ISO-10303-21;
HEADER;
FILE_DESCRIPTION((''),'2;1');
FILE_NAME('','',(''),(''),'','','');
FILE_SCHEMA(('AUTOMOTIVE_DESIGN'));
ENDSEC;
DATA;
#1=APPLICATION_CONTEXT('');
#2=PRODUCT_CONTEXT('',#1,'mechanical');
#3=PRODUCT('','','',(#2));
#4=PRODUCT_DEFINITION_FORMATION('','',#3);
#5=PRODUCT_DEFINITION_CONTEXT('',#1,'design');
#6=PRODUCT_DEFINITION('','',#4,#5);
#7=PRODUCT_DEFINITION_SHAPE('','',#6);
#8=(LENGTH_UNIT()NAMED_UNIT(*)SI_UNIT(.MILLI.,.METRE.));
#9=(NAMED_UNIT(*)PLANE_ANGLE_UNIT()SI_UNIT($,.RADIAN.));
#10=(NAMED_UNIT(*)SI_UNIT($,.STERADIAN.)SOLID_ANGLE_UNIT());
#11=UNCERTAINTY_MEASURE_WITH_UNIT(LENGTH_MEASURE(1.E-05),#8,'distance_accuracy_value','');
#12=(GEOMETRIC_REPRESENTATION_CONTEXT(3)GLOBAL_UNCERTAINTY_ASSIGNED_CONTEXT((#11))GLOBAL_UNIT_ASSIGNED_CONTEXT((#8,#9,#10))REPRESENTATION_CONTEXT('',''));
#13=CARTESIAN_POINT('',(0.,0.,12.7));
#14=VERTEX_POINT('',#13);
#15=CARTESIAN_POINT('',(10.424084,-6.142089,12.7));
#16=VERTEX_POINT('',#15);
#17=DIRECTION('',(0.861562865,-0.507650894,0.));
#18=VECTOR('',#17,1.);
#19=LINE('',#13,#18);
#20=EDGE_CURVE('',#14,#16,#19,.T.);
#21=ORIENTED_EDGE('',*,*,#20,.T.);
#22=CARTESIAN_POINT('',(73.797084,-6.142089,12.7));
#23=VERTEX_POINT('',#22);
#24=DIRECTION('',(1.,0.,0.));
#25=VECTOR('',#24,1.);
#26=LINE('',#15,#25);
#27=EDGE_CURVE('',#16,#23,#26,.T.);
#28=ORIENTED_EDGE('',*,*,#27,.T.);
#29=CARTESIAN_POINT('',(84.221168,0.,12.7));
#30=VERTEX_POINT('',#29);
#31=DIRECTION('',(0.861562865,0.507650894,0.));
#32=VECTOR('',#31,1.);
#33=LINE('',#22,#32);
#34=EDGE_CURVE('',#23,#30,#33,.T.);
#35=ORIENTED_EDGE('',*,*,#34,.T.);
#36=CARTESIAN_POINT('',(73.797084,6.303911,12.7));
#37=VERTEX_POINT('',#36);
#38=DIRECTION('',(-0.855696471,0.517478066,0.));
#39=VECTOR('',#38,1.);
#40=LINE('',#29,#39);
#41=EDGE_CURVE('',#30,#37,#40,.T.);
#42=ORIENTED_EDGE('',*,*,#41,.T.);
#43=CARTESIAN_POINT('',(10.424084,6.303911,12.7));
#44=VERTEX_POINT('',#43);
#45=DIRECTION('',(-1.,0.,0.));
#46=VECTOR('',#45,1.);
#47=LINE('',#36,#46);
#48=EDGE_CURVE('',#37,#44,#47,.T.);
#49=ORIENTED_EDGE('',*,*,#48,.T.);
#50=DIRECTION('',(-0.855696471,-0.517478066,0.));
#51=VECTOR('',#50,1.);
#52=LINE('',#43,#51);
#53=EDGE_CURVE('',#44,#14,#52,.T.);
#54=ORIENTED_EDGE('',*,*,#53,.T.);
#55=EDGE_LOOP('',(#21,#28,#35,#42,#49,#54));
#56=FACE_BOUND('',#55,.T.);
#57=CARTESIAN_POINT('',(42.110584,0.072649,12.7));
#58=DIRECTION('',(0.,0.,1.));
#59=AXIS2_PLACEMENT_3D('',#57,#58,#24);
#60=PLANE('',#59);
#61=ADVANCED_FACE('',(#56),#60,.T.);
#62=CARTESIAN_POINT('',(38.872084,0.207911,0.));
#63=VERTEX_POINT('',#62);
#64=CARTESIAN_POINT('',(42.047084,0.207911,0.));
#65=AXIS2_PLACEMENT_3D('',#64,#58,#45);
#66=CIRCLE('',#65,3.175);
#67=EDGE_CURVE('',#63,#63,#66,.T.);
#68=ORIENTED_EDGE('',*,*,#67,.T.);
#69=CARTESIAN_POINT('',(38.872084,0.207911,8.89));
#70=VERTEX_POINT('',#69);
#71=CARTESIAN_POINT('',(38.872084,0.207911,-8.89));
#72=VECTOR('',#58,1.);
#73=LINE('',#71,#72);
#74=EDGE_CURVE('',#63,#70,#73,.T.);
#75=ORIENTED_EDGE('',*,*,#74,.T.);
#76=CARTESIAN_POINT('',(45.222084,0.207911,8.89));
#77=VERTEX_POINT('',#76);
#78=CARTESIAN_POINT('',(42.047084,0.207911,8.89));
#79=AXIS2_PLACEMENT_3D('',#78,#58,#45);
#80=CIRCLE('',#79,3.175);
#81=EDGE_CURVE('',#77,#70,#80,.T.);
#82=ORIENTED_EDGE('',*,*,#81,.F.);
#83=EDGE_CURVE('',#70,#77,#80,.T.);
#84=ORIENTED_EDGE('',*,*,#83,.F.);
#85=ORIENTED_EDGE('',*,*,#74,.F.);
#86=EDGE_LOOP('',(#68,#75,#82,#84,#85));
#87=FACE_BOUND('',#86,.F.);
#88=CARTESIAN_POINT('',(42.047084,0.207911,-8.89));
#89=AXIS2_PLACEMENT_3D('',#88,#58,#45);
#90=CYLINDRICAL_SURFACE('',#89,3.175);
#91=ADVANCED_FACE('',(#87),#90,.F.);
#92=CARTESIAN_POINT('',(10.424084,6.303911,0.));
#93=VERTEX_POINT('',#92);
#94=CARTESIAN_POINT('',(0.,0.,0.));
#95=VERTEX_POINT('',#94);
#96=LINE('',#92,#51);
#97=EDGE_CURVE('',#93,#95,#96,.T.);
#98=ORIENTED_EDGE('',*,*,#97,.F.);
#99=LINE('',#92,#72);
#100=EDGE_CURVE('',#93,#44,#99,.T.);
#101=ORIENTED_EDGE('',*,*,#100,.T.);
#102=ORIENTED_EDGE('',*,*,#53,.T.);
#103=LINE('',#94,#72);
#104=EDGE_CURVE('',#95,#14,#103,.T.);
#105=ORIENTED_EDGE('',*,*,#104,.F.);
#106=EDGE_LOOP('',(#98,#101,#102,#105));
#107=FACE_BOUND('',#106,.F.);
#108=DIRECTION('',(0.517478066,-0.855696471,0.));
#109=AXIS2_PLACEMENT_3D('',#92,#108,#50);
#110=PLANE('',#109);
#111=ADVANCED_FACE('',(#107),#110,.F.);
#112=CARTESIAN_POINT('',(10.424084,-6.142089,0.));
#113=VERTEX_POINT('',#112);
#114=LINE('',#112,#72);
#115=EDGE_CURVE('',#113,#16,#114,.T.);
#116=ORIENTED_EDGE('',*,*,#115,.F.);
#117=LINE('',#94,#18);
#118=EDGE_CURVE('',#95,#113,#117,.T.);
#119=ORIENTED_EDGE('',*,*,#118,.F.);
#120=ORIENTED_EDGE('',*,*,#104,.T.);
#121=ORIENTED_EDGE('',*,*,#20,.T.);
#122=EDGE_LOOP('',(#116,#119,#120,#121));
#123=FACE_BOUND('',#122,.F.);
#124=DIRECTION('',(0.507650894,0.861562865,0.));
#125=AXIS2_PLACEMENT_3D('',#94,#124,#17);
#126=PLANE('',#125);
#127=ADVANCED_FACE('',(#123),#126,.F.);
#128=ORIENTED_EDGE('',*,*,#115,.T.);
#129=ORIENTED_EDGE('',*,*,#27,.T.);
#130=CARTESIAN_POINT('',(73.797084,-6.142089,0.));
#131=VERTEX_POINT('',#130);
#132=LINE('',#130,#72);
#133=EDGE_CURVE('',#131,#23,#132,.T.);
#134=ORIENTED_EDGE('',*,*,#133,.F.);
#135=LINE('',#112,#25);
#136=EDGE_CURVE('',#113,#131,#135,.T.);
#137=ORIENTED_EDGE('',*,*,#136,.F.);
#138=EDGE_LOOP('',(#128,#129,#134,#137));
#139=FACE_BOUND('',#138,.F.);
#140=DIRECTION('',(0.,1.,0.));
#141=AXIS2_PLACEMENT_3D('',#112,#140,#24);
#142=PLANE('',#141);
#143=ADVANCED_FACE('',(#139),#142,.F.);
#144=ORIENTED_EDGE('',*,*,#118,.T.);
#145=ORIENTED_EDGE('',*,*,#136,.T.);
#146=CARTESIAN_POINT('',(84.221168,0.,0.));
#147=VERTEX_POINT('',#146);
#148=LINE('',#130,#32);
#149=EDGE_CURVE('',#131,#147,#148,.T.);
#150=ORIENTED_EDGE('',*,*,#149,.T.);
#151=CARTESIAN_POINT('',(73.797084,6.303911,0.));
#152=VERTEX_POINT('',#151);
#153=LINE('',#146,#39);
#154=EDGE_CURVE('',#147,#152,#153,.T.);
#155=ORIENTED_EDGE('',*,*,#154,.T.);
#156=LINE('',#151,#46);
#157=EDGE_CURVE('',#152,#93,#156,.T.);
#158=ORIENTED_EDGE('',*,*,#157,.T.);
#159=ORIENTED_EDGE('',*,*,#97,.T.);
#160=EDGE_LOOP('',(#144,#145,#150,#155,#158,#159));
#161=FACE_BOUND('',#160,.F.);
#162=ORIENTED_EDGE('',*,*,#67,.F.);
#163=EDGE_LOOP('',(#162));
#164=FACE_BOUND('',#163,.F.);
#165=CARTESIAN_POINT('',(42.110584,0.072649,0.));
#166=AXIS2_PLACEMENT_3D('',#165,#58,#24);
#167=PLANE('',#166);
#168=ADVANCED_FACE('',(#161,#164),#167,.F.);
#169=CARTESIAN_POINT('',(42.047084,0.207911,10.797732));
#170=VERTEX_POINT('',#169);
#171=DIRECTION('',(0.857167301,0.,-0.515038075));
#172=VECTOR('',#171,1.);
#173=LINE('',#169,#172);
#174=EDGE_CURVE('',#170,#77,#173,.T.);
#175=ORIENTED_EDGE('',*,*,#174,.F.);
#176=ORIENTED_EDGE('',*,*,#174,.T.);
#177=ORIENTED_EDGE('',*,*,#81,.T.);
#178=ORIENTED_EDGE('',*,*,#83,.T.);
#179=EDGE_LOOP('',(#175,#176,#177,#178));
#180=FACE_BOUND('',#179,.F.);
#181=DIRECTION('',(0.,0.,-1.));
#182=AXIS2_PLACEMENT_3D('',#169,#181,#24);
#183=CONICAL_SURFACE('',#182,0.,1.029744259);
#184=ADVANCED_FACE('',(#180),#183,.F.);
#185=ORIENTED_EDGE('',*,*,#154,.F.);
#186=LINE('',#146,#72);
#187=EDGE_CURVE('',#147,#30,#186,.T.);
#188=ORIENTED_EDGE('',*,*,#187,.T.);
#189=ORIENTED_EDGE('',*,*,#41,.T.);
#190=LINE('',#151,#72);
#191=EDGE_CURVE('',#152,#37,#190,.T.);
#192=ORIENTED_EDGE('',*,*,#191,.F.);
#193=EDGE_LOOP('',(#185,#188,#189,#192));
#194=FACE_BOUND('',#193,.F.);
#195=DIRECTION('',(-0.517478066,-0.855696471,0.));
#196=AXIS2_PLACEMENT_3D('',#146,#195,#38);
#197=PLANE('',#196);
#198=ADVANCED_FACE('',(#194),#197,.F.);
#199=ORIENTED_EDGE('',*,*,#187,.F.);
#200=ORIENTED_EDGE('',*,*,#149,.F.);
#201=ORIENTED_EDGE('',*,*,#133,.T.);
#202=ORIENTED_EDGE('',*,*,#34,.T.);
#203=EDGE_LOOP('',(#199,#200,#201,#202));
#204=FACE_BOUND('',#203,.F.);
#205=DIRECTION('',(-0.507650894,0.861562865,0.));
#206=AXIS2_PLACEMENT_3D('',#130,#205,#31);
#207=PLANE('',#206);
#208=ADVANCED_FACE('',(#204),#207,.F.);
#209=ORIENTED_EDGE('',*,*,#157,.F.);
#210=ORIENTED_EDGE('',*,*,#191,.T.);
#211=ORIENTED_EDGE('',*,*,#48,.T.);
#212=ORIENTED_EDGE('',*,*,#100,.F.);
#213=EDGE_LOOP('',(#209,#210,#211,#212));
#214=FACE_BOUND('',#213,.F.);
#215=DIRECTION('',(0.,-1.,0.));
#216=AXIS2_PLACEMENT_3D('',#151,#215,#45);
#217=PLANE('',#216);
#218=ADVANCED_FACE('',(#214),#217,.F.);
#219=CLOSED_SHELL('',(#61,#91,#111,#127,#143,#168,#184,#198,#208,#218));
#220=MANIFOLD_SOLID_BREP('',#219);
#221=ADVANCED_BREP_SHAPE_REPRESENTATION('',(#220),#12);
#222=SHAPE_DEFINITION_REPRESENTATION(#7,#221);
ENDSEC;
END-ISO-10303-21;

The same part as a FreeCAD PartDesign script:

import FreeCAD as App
import Part
import Sketcher
Q = App.Units.Quantity

doc = App.newDocument("Part")
body = doc.addObject("PartDesign::Body", "Body")

# Sketch on XY plane
sketch1 = doc.addObject("Sketcher::SketchObject", "Sketch")
body.addObject(sketch1)
sketch1.AttachmentSupport = (doc.XY_Plane, [""])
sketch1.MapMode = "FlatFace"
sketch1.addGeometry(Part.LineSegment(App.Vector(10.424084, 6.303911, 0), App.Vector(0, 0, 0)), False)
sketch1.addGeometry(Part.LineSegment(App.Vector(0, 0, 0), App.Vector(10.424084, -6.142089, 0)), False)
sketch1.addGeometry(Part.LineSegment(App.Vector(10.424084, -6.142089, 0), App.Vector(73.797084, -6.142089, 0)), False)
sketch1.addGeometry(Part.LineSegment(App.Vector(73.797084, -6.142089, 0), App.Vector(84.221168, 0, 0)), False)
sketch1.addGeometry(Part.LineSegment(App.Vector(84.221168, 0, 0), App.Vector(73.797084, 6.303911, 0)), False)
sketch1.addGeometry(Part.LineSegment(App.Vector(73.797084, 6.303911, 0), App.Vector(10.424084, 6.303911, 0)), False)
sketch1.addConstraint(Sketcher.Constraint("Coincident", 0, 2, 1, 1))
sketch1.addConstraint(Sketcher.Constraint("Coincident", 1, 2, 2, 1))
sketch1.addConstraint(Sketcher.Constraint("Coincident", 2, 2, 3, 1))
sketch1.addConstraint(Sketcher.Constraint("Coincident", 3, 2, 4, 1))
sketch1.addConstraint(Sketcher.Constraint("Coincident", 4, 2, 5, 1))
sketch1.addConstraint(Sketcher.Constraint("Coincident", 5, 2, 0, 1))
sketch1.addConstraint(Sketcher.Constraint("Horizontal", 2))
sketch1.addConstraint(Sketcher.Constraint("Horizontal", 5))
sketch1.addConstraint(Sketcher.Constraint("Coincident", 0, 2, -1, 1))
sketch1.addConstraint(Sketcher.Constraint("PointOnObject", 3, 2, -1))
sketch1.addConstraint(Sketcher.Constraint("Vertical", 2, 2, 4, 2))
sketch1.addConstraint(Sketcher.Constraint("Vertical", 1, 2, 5, 2))
sketch1.addConstraint(Sketcher.Constraint("Equal", 1, 3))
sketch1.addConstraint(Sketcher.Constraint("DistanceX", 2, 1, 2, 2, Q("2.495 in")))
sketch1.addConstraint(Sketcher.Constraint("DistanceY", 2, 2, 4, 2, Q("0.49 in")))
sketch1.addConstraint(Sketcher.Constraint("Distance", 1, 12.09904))
sketch1.addConstraint(Sketcher.Constraint("DistanceY", 1, 2, -1, 1, 6.142089))
pad1 = doc.addObject("PartDesign::Pad", "Pad")
body.addObject(pad1)
pad1.Profile = sketch1
pad1.Length = Q("0.5 in")

# Sketch on XY plane
sketch2 = doc.addObject("Sketcher::SketchObject", "Sketch001")
body.addObject(sketch2)
sketch2.AttachmentSupport = (doc.XY_Plane, [""])
sketch2.MapMode = "FlatFace"
sketch2.addGeometry(Part.Circle(App.Vector(42.047084, 0.207911, 0), App.Vector(0, 0, 1), 3.175), False)
sketch2.addConstraint(Sketcher.Constraint("Diameter", 0, Q("0.25 in")))
sketch2.addConstraint(Sketcher.Constraint("DistanceY", -1, 1, 0, 3, 0.207911))
sketch2.addConstraint(Sketcher.Constraint("DistanceX", -1, 1, 0, 3, 42.047084))
doc.recompute()
hole = doc.addObject("PartDesign::Hole", "Hole")
body.addObject(hole)
hole.Profile = sketch2
hole.ThreadType = "None"
hole.Diameter = Q("0.25 in")
hole.DepthType = "Dimension"
hole.Depth = Q("0.35 in")
hole.DrillPoint = "Angled"
hole.DrillPointAngle = 118
hole.Reversed = True

doc.recompute()
